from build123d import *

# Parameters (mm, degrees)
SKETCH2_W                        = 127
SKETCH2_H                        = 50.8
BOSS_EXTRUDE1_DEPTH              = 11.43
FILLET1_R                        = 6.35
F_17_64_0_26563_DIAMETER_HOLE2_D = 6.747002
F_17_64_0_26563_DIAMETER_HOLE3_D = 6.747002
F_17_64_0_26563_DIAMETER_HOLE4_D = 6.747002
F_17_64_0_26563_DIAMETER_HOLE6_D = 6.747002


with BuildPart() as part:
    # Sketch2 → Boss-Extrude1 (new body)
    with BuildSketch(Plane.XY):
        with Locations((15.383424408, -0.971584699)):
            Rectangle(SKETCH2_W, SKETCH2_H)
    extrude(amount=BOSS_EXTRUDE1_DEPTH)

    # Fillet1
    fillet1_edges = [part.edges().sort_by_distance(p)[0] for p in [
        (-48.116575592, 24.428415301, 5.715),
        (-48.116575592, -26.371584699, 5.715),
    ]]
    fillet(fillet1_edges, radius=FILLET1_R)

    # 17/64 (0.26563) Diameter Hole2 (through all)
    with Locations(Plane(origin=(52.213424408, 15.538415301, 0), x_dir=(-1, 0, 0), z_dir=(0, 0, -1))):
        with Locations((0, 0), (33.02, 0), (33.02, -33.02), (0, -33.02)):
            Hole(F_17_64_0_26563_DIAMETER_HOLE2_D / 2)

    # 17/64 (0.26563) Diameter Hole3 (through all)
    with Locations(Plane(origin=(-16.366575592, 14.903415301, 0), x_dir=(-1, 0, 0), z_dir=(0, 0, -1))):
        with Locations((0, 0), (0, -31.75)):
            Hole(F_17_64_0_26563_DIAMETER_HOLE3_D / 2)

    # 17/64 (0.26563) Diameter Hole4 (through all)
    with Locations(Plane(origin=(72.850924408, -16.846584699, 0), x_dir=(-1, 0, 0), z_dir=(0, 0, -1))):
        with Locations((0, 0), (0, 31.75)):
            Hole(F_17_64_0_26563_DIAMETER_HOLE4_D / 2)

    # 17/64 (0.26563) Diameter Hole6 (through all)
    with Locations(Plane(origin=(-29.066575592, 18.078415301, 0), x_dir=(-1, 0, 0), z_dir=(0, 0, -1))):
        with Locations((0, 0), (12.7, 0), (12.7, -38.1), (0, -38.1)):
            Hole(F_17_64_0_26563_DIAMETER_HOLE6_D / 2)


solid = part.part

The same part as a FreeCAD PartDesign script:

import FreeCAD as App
import Part
import Sketcher
Q = App.Units.Quantity


def edges_at(feature, points):
    """Names of the edges that pass closest to the given points."""
    edges = feature.Shape.Edges
    near = lambda p: min(range(len(edges)), key=lambda i: edges[i].distToShape(Part.Vertex(*p))[0])
    return sorted({f"Edge{near(p) + 1}" for p in points})


def add_polygon(sketch, points):
    """Adds a closed chain of lines whose ends are joined by coincident constraints."""
    first, n = sketch.GeometryCount, len(points)
    for a, b in zip(points, points[1:] + points[:1]):
        sketch.addGeometry(Part.LineSegment(App.Vector(*a, 0), App.Vector(*b, 0)), False)
    for i in range(n):
        sketch.addConstraint(Sketcher.Constraint("Coincident", first + i, 2, first + (i + 1) % n, 1))

doc = App.newDocument("Part")
body = doc.addObject("PartDesign::Body", "Body")

sketch1 = doc.addObject("Sketcher::SketchObject", "Sketch")
body.addObject(sketch1)
sketch1.AttachmentSupport = (doc.XY_Plane, [""])
sketch1.MapMode = "FlatFace"
add_polygon(sketch1, [(-48, 24), (-48, -26), (79, -26), (79, 24)])
sketch1.addConstraint([
    Sketcher.Constraint("Vertical", 0),
    Sketcher.Constraint("Horizontal", 1),
    Sketcher.Constraint("Vertical", 2),
    Sketcher.Constraint("Horizontal", 3),
    Sketcher.Constraint("DistanceX", 1, 1, 1, 2, Q("5 in")),
    Sketcher.Constraint("DistanceY", 0, 2, 0, 1, Q("2 in")),
    Sketcher.Constraint("DistanceX", 0, 2, -1, 1, 48.116576),
    Sketcher.Constraint("DistanceY", 0, 2, -1, 1, 26.371585),
])
pad1 = doc.addObject("PartDesign::Pad", "Pad")
body.addObject(pad1)
pad1.Profile = sketch1
pad1.Length = Q("0.45 in")
doc.recompute()

fillet = doc.addObject("PartDesign::Fillet", "Fillet")
body.addObject(fillet)
fillet.Base = (pad1, edges_at(pad1, [(-48.117, 24.428, 5.715), (-48.117, -26.372, 5.715)]))
fillet.Radius = Q("0.25 in")

sketch2 = doc.addObject("Sketcher::SketchObject", "Sketch001")
body.addObject(sketch2)
sketch2.AttachmentSupport = (doc.XY_Plane, [""])
sketch2.MapMode = "FlatFace"
sketch2.addGeometry([
    Part.Circle(App.Vector(52.2, 15.5, 0), App.Vector(0, 0, 1), 3.4),
    Part.Circle(App.Vector(19.2, 15.5, 0), App.Vector(0, 0, 1), 3.4),
    Part.Circle(App.Vector(19.2, -17.5, 0), App.Vector(0, 0, 1), 3.4),
    Part.Circle(App.Vector(52.2, -17.5, 0), App.Vector(0, 0, 1), 3.4),
], False)
sketch2.addConstraint([
    Sketcher.Constraint("Equal", 0, 1),
    Sketcher.Constraint("Equal", 1, 2),
    Sketcher.Constraint("Equal", 2, 3),
    Sketcher.Constraint("Horizontal", 0, 3, 1, 3),
    Sketcher.Constraint("Horizontal", 2, 3, 3, 3),
    Sketcher.Constraint("Vertical", 1, 3, 2, 3),
    Sketcher.Constraint("Vertical", 0, 3, 3, 3),
    Sketcher.Constraint("DistanceX", 1, 3, 0, 3, Q("1.3 in")),
    Sketcher.Constraint("DistanceY", 2, 3, 1, 3, Q("1.3 in")),
    Sketcher.Constraint("Diameter", 0, 6.747002),
    Sketcher.Constraint("DistanceX", -1, 1, 0, 3, 52.213424),
    Sketcher.Constraint("DistanceY", -1, 1, 0, 3, 15.538415),
])
doc.recompute()
hole = doc.addObject("PartDesign::Hole", "Hole")
body.addObject(hole)
hole.Profile = sketch2
hole.ThreadType = "None"
hole.Diameter = 6.747002
hole.DepthType = "ThroughAll"
hole.Reversed = True

sketch3 = doc.addObject("Sketcher::SketchObject", "Sketch002")
body.addObject(sketch3)
sketch3.AttachmentSupport = (doc.XY_Plane, [""])
sketch3.MapMode = "FlatFace"
sketch3.addGeometry([
    Part.Circle(App.Vector(-16.4, 14.9, 0), App.Vector(0, 0, 1), 3.4),
    Part.Circle(App.Vector(-16.4, -16.8, 0), App.Vector(0, 0, 1), 3.4),
], False)
sketch3.addConstraint([
    Sketcher.Constraint("Equal", 0, 1),
    Sketcher.Constraint("Vertical", 0, 3, 1, 3),
    Sketcher.Constraint("DistanceY", 1, 3, 0, 3, Q("1.25 in")),
    Sketcher.Constraint("Diameter", 0, 6.747002),
    Sketcher.Constraint("DistanceX", 0, 3, -1, 1, 16.366576),
    Sketcher.Constraint("DistanceY", -1, 1, 0, 3, 14.903415),
])
doc.recompute()
hole2 = doc.addObject("PartDesign::Hole", "Hole001")
body.addObject(hole2)
hole2.Profile = sketch3
hole2.ThreadType = "None"
hole2.Diameter = 6.747002
hole2.DepthType = "ThroughAll"
hole2.Reversed = True

sketch4 = doc.addObject("Sketcher::SketchObject", "Sketch003")
body.addObject(sketch4)
sketch4.AttachmentSupport = (doc.XY_Plane, [""])
sketch4.MapMode = "FlatFace"
sketch4.addGeometry([
    Part.Circle(App.Vector(72.9, -16.8, 0), App.Vector(0, 0, 1), 3.4),
    Part.Circle(App.Vector(72.9, 14.9, 0), App.Vector(0, 0, 1), 3.4),
], False)
sketch4.addConstraint([
    Sketcher.Constraint("Equal", 0, 1),
    Sketcher.Constraint("Vertical", 0, 3, 1, 3),
    Sketcher.Constraint("DistanceY", 0, 3, 1, 3, Q("1.25 in")),
    Sketcher.Constraint("Diameter", 0, 6.747002),
    Sketcher.Constraint("DistanceX", -1, 1, 0, 3, 72.850924),
    Sketcher.Constraint("DistanceY", 0, 3, -1, 1, 16.846585),
])
doc.recompute()
hole3 = doc.addObject("PartDesign::Hole", "Hole002")
body.addObject(hole3)
hole3.Profile = sketch4
hole3.ThreadType = "None"
hole3.Diameter = 6.747002
hole3.DepthType = "ThroughAll"
hole3.Reversed = True

sketch5 = doc.addObject("Sketcher::SketchObject", "Sketch004")
body.addObject(sketch5)
sketch5.AttachmentSupport = (doc.XY_Plane, [""])
sketch5.MapMode = "FlatFace"
sketch5.addGeometry([
    Part.Circle(App.Vector(-29.1, 18.1, 0), App.Vector(0, 0, 1), 3.4),
    Part.Circle(App.Vector(-41.8, 18.1, 0), App.Vector(0, 0, 1), 3.4),
    Part.Circle(App.Vector(-41.8, -20, 0), App.Vector(0, 0, 1), 3.4),
    Part.Circle(App.Vector(-29.1, -20, 0), App.Vector(0, 0, 1), 3.4),
], False)
sketch5.addConstraint([
    Sketcher.Constraint("Equal", 0, 1),
    Sketcher.Constraint("Equal", 1, 2),
    Sketcher.Constraint("Equal", 2, 3),
    Sketcher.Constraint("Horizontal", 0, 3, 1, 3),
    Sketcher.Constraint("Horizontal", 2, 3, 3, 3),
    Sketcher.Constraint("Vertical", 1, 3, 2, 3),
    Sketcher.Constraint("Vertical", 0, 3, 3, 3),
    Sketcher.Constraint("DistanceX", 1, 3, 0, 3, Q("0.5 in")),
    Sketcher.Constraint("DistanceY", 2, 3, 1, 3, Q("1.5 in")),
    Sketcher.Constraint("Diameter", 0, 6.747002),
    Sketcher.Constraint("DistanceX", 0, 3, -1, 1, 29.066576),
    Sketcher.Constraint("DistanceY", -1, 1, 0, 3, 18.078415),
])
doc.recompute()
hole4 = doc.addObject("PartDesign::Hole", "Hole003")
body.addObject(hole4)
hole4.Profile = sketch5
hole4.ThreadType = "None"
hole4.Diameter = 6.747002
hole4.DepthType = "ThroughAll"
hole4.Reversed = True

doc.recompute()
